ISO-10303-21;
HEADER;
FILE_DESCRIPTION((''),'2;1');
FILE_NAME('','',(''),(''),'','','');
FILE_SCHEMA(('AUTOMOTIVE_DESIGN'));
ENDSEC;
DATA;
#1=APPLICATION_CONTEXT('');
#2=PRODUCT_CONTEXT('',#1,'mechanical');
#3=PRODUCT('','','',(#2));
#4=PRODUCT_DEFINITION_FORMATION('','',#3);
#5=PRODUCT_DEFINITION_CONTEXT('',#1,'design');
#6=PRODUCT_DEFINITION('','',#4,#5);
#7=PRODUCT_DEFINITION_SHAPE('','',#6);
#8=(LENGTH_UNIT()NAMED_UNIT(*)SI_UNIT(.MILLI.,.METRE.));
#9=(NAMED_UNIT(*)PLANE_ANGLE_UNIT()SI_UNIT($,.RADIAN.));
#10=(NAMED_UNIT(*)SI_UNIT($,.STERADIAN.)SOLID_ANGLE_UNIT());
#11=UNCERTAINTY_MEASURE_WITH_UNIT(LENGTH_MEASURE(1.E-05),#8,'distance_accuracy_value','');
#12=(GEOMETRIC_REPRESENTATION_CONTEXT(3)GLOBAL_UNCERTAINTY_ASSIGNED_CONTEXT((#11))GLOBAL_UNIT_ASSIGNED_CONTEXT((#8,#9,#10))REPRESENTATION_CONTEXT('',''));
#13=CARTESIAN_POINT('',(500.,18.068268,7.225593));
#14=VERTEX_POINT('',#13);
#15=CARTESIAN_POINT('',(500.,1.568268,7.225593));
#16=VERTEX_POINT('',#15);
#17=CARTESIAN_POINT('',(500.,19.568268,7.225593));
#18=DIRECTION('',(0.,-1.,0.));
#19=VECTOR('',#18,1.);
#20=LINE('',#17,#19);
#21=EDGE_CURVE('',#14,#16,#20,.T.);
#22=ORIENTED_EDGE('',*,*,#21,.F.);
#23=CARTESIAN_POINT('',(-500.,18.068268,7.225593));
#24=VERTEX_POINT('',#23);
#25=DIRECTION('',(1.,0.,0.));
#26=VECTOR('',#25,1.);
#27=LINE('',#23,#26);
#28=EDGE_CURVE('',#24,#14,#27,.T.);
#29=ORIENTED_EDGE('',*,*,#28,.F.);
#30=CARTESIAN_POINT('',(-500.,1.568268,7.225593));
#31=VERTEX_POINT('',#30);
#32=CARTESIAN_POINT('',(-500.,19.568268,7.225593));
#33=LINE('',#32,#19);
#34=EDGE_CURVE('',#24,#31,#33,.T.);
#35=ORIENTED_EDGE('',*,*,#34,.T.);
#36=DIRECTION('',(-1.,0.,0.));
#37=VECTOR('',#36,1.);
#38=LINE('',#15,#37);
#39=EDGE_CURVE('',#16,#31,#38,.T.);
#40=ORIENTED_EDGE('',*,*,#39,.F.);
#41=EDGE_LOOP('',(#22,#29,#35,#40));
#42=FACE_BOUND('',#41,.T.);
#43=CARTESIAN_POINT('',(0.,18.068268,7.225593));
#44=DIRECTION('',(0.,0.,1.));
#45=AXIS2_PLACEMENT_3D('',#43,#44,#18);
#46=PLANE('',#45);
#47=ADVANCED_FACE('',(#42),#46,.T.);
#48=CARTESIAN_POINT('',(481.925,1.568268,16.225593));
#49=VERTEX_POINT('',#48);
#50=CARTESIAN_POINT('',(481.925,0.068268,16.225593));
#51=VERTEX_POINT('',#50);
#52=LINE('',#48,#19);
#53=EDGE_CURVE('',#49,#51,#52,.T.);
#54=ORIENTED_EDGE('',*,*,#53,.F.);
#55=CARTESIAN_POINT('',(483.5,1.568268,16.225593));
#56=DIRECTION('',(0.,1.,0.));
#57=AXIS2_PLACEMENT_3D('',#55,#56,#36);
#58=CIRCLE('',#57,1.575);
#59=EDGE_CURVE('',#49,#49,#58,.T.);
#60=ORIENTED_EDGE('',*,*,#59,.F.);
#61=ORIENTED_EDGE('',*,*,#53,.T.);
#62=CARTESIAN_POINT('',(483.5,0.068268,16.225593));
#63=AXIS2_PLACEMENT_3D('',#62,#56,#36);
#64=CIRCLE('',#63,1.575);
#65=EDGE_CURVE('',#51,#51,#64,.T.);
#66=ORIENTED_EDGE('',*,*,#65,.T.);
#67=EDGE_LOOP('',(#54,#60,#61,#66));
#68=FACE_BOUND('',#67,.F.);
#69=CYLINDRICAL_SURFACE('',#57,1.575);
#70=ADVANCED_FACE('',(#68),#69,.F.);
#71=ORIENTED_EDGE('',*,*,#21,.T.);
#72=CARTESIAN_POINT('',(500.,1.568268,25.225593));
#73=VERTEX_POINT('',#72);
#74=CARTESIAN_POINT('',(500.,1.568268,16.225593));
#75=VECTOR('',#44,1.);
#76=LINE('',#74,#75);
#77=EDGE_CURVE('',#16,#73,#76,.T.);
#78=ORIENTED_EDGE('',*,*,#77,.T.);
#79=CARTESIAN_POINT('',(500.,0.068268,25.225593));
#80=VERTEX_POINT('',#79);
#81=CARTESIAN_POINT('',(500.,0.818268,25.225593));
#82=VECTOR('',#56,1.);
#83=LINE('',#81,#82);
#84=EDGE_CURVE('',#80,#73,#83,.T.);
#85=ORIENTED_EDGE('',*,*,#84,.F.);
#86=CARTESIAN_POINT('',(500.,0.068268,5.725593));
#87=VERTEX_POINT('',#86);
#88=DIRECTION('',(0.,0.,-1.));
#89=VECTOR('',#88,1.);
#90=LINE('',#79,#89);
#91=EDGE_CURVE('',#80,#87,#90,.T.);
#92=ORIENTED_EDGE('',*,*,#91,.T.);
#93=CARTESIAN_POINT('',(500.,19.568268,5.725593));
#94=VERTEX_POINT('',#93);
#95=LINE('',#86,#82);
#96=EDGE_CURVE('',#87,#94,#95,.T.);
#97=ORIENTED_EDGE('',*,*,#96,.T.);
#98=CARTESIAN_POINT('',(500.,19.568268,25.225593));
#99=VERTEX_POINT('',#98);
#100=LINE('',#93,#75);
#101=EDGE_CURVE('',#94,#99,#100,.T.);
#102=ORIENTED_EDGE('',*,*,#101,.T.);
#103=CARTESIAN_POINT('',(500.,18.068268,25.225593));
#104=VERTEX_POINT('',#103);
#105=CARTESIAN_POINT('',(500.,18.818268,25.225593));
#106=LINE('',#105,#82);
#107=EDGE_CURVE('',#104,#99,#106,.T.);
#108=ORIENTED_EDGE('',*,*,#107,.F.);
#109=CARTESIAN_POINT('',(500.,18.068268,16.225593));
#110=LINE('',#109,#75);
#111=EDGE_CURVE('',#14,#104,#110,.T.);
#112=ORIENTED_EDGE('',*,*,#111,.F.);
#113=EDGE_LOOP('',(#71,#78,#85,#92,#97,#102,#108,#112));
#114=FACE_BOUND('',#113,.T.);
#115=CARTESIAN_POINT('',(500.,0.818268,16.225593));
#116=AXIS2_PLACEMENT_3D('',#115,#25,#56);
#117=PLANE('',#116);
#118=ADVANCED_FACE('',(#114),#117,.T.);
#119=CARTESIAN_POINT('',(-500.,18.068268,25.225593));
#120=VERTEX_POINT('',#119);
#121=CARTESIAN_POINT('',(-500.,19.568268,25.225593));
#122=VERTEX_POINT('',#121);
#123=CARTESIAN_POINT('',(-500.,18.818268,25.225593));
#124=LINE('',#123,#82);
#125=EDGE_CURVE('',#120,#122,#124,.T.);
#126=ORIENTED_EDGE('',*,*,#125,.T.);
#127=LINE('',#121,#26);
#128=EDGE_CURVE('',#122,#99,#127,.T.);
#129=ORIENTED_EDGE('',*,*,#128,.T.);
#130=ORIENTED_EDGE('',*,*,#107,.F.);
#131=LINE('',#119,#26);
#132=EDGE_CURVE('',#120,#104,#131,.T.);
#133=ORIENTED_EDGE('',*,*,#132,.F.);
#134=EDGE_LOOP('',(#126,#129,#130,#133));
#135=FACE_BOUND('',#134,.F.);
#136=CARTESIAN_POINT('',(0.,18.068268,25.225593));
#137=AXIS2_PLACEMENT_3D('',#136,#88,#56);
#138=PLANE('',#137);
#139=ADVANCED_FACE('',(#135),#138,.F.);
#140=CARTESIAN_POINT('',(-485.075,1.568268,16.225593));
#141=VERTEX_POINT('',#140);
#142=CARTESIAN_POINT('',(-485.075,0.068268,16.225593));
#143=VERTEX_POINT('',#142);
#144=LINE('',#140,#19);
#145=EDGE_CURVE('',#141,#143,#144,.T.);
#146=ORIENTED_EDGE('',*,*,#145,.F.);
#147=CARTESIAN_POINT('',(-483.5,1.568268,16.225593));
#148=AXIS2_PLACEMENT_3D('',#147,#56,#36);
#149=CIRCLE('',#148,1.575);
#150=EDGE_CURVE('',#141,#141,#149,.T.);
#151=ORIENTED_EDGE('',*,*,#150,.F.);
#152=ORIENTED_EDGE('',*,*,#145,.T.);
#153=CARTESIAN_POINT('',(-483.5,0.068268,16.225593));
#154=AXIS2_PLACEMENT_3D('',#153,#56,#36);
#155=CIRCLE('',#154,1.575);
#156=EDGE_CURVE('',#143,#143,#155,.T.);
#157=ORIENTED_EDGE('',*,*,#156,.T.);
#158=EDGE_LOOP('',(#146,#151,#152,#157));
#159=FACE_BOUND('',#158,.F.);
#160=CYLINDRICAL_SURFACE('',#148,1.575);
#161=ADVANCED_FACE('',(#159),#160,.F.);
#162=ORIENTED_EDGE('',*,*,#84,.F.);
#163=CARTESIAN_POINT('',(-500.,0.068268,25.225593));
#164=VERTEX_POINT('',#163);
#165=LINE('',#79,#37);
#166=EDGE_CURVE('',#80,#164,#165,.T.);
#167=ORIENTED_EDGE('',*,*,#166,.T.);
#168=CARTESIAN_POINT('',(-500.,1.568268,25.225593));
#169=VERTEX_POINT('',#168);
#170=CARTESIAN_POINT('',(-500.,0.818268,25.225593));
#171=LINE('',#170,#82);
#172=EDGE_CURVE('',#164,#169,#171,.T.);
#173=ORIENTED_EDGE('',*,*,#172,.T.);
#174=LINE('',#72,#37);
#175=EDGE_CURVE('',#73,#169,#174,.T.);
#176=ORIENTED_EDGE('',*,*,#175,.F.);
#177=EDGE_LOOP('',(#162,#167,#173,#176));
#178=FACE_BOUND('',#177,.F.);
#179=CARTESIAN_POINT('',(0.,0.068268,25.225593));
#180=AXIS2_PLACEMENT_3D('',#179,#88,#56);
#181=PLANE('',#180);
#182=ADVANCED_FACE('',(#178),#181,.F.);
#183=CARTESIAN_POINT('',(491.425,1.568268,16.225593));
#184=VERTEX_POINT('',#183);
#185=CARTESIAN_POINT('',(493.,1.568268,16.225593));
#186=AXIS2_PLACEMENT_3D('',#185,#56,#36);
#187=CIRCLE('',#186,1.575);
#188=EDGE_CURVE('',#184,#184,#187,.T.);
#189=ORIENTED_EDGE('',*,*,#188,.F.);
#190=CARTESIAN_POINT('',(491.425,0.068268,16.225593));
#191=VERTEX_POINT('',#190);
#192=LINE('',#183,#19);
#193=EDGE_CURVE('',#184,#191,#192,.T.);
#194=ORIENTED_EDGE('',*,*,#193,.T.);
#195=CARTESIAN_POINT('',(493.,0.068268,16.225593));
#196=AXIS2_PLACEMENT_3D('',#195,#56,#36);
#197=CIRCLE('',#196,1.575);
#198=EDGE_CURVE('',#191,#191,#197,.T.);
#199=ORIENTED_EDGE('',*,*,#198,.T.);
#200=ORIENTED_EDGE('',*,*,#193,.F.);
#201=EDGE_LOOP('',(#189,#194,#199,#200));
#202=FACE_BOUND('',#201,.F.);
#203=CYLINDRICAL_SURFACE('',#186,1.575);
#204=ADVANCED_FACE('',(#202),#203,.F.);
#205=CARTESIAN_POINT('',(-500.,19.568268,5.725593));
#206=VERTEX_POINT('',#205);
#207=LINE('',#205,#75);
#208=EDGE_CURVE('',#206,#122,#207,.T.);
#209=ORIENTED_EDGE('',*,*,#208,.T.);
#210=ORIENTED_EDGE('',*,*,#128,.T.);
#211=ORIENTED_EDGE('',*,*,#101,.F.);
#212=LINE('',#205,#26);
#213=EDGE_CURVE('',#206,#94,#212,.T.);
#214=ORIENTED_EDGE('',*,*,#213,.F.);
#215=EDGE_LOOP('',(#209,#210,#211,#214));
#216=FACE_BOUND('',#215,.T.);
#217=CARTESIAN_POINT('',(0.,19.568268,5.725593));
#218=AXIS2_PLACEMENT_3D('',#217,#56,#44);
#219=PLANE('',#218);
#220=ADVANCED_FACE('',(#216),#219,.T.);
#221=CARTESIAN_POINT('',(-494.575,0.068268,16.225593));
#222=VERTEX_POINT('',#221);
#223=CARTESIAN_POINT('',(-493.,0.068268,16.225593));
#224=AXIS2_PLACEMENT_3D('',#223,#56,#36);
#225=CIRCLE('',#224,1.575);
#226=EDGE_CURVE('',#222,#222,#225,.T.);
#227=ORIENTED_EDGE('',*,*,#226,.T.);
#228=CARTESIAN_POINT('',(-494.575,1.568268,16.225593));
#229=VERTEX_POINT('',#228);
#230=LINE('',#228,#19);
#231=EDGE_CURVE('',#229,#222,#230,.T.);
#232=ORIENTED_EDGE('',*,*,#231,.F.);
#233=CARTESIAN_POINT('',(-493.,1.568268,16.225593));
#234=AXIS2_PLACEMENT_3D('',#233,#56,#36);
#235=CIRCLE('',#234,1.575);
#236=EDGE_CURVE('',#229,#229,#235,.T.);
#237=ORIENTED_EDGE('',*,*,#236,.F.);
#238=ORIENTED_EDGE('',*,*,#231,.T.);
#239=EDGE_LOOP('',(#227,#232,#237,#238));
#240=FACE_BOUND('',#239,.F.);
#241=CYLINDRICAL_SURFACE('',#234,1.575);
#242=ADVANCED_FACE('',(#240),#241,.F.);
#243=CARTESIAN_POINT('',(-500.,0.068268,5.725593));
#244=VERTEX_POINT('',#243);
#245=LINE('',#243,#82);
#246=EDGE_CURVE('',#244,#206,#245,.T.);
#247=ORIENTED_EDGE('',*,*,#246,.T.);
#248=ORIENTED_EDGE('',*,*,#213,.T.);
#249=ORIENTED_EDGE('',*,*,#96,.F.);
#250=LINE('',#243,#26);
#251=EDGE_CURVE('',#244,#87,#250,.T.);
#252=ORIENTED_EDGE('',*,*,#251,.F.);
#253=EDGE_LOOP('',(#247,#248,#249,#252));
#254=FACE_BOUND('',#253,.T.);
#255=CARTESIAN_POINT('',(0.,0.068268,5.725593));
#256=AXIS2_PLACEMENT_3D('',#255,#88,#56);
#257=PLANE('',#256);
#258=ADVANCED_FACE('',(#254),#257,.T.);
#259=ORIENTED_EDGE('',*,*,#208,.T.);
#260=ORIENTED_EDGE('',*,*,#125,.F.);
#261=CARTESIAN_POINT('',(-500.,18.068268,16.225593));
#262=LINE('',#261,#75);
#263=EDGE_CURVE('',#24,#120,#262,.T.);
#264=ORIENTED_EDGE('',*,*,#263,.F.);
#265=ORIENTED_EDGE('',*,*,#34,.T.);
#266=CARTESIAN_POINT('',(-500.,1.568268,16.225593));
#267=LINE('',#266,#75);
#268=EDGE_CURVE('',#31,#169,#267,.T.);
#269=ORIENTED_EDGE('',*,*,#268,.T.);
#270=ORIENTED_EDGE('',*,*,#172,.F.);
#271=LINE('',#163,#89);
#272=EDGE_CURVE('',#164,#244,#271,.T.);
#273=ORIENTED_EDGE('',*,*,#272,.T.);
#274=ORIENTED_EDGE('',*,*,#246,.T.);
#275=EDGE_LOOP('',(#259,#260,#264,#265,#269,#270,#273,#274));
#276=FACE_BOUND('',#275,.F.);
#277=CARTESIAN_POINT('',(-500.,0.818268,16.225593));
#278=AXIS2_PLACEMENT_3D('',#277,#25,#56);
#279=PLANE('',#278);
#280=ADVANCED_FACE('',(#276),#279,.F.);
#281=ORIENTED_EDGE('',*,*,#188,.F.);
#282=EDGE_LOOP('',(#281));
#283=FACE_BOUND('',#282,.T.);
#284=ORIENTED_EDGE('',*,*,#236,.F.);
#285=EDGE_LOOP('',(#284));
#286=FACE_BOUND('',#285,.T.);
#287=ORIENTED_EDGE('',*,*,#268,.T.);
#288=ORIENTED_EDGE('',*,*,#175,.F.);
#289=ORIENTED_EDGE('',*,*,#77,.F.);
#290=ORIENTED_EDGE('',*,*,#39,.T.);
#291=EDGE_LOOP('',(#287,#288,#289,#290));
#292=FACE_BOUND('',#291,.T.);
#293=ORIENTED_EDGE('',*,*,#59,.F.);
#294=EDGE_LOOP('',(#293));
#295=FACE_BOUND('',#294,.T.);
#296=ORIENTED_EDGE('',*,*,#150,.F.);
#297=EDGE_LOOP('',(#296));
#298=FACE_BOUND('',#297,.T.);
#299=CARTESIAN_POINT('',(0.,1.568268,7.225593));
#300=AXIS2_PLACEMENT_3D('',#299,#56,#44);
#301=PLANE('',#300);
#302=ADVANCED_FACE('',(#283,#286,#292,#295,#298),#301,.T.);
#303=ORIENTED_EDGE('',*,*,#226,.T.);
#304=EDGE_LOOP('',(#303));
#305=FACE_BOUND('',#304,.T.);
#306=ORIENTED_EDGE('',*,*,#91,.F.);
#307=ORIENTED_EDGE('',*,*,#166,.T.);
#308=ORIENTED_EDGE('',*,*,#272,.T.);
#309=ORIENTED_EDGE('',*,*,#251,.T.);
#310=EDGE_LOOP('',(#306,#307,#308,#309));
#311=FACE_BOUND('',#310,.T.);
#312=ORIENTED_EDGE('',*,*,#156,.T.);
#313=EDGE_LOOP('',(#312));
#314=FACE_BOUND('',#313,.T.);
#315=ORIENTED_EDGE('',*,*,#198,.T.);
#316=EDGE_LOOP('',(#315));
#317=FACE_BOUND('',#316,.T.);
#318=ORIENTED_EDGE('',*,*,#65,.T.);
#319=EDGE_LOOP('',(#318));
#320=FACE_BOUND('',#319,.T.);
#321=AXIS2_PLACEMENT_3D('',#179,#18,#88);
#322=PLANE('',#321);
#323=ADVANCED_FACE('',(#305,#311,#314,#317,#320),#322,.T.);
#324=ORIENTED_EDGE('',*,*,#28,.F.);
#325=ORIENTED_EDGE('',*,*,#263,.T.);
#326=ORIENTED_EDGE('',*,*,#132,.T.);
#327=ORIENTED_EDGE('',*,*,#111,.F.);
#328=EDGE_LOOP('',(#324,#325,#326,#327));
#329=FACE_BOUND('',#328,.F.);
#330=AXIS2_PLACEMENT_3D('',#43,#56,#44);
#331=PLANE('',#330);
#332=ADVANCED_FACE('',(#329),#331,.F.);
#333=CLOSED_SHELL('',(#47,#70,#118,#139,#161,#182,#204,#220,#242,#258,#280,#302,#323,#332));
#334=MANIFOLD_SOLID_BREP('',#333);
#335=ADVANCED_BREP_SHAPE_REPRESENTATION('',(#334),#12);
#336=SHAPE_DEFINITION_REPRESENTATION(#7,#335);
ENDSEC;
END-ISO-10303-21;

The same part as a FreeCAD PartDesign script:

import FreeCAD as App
import Part
import Sketcher

V = App.Vector
Q = App.Units.Quantity


def add_polygon(sketch, points):
    """Adds a closed chain of lines whose ends are joined by coincident constraints."""
    first, n = sketch.GeometryCount, len(points)
    for a, b in zip(points, points[1:] + points[:1]):
        sketch.addGeometry(Part.LineSegment(App.Vector(*a, 0), App.Vector(*b, 0)), False)
    for i in range(n):
        sketch.addConstraint(Sketcher.Constraint("Coincident", first + i, 2, first + (i + 1) % n, 1))

doc = App.newDocument("Part")
params = doc.addObject("Spreadsheet::Sheet", "Params")
for row, (alias, value) in enumerate([
    ("sketch1_height", "18 mm"),
    ("sketch1_width", "19.5 mm"),
    ("sketch1_width2", "1.5 mm"),
    ("pad1_length", "1000 mm"),
    ("sketch2_diameter", "3.15 mm"),
], start=1):
    params.set(f"A{row}", alias)
    params.set(f"B{row}", "=" + value)
    params.setAlias(f"B{row}", alias)

body = doc.addObject("PartDesign::Body", "Body")

# Sketch on YZ plane
sketch1 = doc.addObject("Sketcher::SketchObject", "Sketch")
body.addObject(sketch1)
sketch1.AttachmentSupport = (doc.YZ_Plane, [""])
sketch1.MapMode = "FlatFace"
add_polygon(sketch1, [(0.1, 25.2), (0.1, 5.7), (19.6, 5.7), (19.6, 25.2), (18.1, 25.2), (18.1, 7.2), (1.6, 7.2), (1.6, 25.2)])  # lines 0-7
sketch1.addConstraint(Sketcher.Constraint("Vertical", 0))
sketch1.addConstraint(Sketcher.Constraint("Horizontal", 1))
sketch1.addConstraint(Sketcher.Constraint("Vertical", 2))
sketch1.addConstraint(Sketcher.Constraint("Horizontal", 3))
sketch1.addConstraint(Sketcher.Constraint("Vertical", 4))
sketch1.addConstraint(Sketcher.Constraint("Horizontal", 5))
sketch1.addConstraint(Sketcher.Constraint("Vertical", 6))
sketch1.addConstraint(Sketcher.Constraint("Horizontal", 7))
sketch1.addConstraint(Sketcher.Constraint("Horizontal", 3, 2, 6, 2))
sketch1.addConstraint(Sketcher.Constraint("Equal", 3, 7))
sketch1.addConstraint(Sketcher.Constraint("Equal", 1, 0))
sketch1.addConstraint(Sketcher.Constraint("DistanceY", 4, 2, 4, 1, Q("18 mm")))
sketch1.addConstraint(Sketcher.Constraint("DistanceX", 1, 1, 1, 2, Q("19.5 mm")))
sketch1.addConstraint(Sketcher.Constraint("DistanceX", 3, 2, 3, 1, Q("1.5 mm")))
sketch1.addConstraint(Sketcher.Constraint("DistanceX", -1, 1, 0, 2, Q("0.068268 mm")))
sketch1.addConstraint(Sketcher.Constraint("DistanceY", -1, 1, 0, 2, Q("5.725593 mm")))
sketch1.setExpression("Constraints[19]", "Params.sketch1_height")
sketch1.setExpression("Constraints[20]", "Params.sketch1_width")
sketch1.setExpression("Constraints[21]", "Params.sketch1_width2")
pad1 = doc.addObject("PartDesign::Pad", "Pad")
body.addObject(pad1)
pad1.Profile = sketch1
pad1.setExpression("Length", "Params.pad1_length")
pad1.Midplane = True

# Sketch on XZ plane
sketch2 = doc.addObject("Sketcher::SketchObject", "Sketch001")
body.addObject(sketch2)
sketch2.AttachmentSupport = (doc.XZ_Plane, [""])
sketch2.MapMode = "FlatFace"
sketch2.AttachmentOffset = App.Placement(V(0, 0, -1.568268), App.Rotation())
sketch2.addGeometry(Part.Circle(V(-483.5, 16.2, 0), V(0, 0, 1), 1.6), False)
sketch2.addGeometry(Part.Circle(V(483.5, 16.2, 0), V(0, 0, 1), 1.6), False)
sketch2.addGeometry(Part.Circle(V(493, 16.2, 0), V(0, 0, 1), 1.6), False)
sketch2.addGeometry(Part.Circle(V(-493, 16.2, 0), V(0, 0, 1), 1.6), False)
sketch2.addConstraint(Sketcher.Constraint("Equal", 0, 1))
sketch2.addConstraint(Sketcher.Constraint("Equal", 1, 2))
sketch2.addConstraint(Sketcher.Constraint("Equal", 2, 3))
sketch2.addConstraint(Sketcher.Constraint("Symmetric", 0, 3, 1, 3, -2))
sketch2.addConstraint(Sketcher.Constraint("Symmetric", 2, 3, 3, 3, -2))
sketch2.addConstraint(Sketcher.Constraint("Horizontal", 1, 3, 2, 3))
sketch2.addConstraint(Sketcher.Constraint("Diameter", 0, Q("3.15 mm")))
sketch2.addConstraint(Sketcher.Constraint("DistanceX", -1, 1, 2, 3, Q("493 mm")))
sketch2.addConstraint(Sketcher.Constraint("DistanceX", 0, 3, 1, 3, Q("967 mm")))
sketch2.addConstraint(Sketcher.Constraint("DistanceY", -1, 1, 0, 3, Q("16.225593 mm")))
sketch2.setExpression("Constraints[6]", "Params.sketch2_diameter")
pocket1 = doc.addObject("PartDesign::Pocket", "Pocket")
body.addObject(pocket1)
pocket1.Profile = sketch2
pocket1.Type = "ThroughAll"
pocket1.Reversed = True

doc.recompute()
